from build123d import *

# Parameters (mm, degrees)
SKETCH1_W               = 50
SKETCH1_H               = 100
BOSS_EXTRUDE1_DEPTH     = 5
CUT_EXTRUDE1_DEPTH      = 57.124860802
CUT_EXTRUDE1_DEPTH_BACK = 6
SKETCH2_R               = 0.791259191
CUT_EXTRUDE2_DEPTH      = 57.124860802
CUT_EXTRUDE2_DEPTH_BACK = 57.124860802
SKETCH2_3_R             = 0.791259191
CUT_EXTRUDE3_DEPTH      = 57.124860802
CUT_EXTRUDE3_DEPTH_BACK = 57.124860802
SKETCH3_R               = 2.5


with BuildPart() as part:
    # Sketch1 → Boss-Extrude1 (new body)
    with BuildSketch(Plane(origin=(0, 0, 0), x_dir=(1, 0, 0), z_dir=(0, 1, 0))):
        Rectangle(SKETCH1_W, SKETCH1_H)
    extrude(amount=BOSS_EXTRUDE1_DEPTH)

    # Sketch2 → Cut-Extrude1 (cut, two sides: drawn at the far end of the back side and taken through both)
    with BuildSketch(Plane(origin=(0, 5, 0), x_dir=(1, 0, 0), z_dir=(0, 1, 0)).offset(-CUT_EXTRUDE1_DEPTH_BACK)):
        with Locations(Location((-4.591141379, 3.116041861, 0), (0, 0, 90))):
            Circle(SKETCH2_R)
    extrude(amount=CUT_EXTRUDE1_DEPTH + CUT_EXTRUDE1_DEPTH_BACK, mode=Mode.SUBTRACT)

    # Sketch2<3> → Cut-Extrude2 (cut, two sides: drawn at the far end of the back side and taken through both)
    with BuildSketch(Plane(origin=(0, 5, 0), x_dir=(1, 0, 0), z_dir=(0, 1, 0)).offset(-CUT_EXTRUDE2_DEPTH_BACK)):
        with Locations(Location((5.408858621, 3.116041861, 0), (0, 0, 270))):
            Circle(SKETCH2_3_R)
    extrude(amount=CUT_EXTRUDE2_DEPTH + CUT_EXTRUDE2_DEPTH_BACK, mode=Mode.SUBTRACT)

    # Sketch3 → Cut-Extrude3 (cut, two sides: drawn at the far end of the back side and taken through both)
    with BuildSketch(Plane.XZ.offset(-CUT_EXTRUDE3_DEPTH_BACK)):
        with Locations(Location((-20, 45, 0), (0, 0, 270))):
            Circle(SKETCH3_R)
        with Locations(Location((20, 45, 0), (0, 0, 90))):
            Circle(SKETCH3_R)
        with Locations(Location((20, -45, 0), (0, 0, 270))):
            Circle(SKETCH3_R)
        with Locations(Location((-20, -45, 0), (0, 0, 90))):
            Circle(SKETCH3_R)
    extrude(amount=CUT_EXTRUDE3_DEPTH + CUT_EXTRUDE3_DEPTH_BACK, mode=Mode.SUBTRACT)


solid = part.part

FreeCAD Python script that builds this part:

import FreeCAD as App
import Part
import Sketcher
from FreeCAD import Vector


def add_polygon(sketch, points):
    """Adds a closed chain of lines whose ends are joined by coincident constraints."""
    first, n = sketch.GeometryCount, len(points)
    for a, b in zip(points, points[1:] + points[:1]):
        sketch.addGeometry(Part.LineSegment(App.Vector(*a, 0), App.Vector(*b, 0)), False)
    for i in range(n):
        sketch.addConstraint(Sketcher.Constraint("Coincident", first + i, 2, first + (i + 1) % n, 1))

doc = App.newDocument("Part")
params = doc.addObject("Spreadsheet::Sheet", "Params")
for row, (alias, value) in enumerate([
    ("sketch1_width", "50 mm"),
    ("sketch1_height", "100 mm"),
    ("pad1_length", "5 mm"),
    ("sketch4_diameter", "5 mm"),
], start=1):
    params.set(f"A{row}", alias)
    params.set(f"B{row}", "=" + value)
    params.setAlias(f"B{row}", alias)

body = doc.addObject("PartDesign::Body", "Body")

# Sketch on XZ plane
sketch1 = body.newObject("Sketcher::SketchObject", "Sketch")
sketch1.AttachmentSupport = (doc.getObject("XZ_Plane"), [""])
sketch1.MapMode = "FlatFace"
add_polygon(sketch1, [(-25, -50), (-25, 50), (25, 50), (25, -50)])  # lines 0-3
sketch1.addConstraint(Sketcher.Constraint("Vertical", 0))
sketch1.addConstraint(Sketcher.Constraint("Horizontal", 1))
sketch1.addConstraint(Sketcher.Constraint("Vertical", 2))
sketch1.addConstraint(Sketcher.Constraint("Horizontal", 3))
sketch1.addConstraint(Sketcher.Constraint("Symmetric", 0, 2, 2, 2, -1, 1))
sketch1.addConstraint(Sketcher.Constraint("DistanceX", 1, 1, 1, 2, 50.0))
sketch1.addConstraint(Sketcher.Constraint("DistanceY", 0, 1, 0, 2, 100.0))
sketch1.setExpression("Constraints[9]", "Params.sketch1_width")
sketch1.setExpression("Constraints[10]", "Params.sketch1_height")
pad1 = body.newObject("PartDesign::Pad", "Pad")
pad1.Profile = sketch1
pad1.setExpression("Length", "Params.pad1_length")
pad1.Reversed = True

# Sketch on XZ plane
sketch2 = body.newObject("Sketcher::SketchObject", "Sketch001")
sketch2.AttachmentSupport = (doc.getObject("XZ_Plane"), [""])
sketch2.MapMode = "FlatFace"
sketch2.AttachmentOffset = App.Placement(Vector(0, 0, -5), App.Rotation())
sketch2.addGeometry(Part.Circle(Vector(-4.6, -3.1, 0), Vector(0, 0, 1), 0.8), False)
sketch2.addConstraint(Sketcher.Constraint("Diameter", 0, 1.582518))
sketch2.addConstraint(Sketcher.Constraint("DistanceX", 0, 3, -1, 1, 4.591141))
sketch2.addConstraint(Sketcher.Constraint("DistanceY", 0, 3, -1, 1, 3.116042))
pocket1 = body.newObject("PartDesign::Pocket", "Pocket")
pocket1.Profile = sketch2
pocket1.Type = "ThroughAll"
pocket1.Midplane = True

# Sketch on XZ plane
sketch3 = body.newObject("Sketcher::SketchObject", "Sketch002")
sketch3.AttachmentSupport = (doc.getObject("XZ_Plane"), [""])
sketch3.MapMode = "FlatFace"
sketch3.AttachmentOffset = App.Placement(Vector(0, 0, -5), App.Rotation())
sketch3.addGeometry(Part.Circle(Vector(5.4, -3.1, 0), Vector(0, 0, 1), 0.8), False)
sketch3.addConstraint(Sketcher.Constraint("Diameter", 0, 1.582518))
sketch3.addConstraint(Sketcher.Constraint("DistanceX", -1, 1, 0, 3, 5.408859))
sketch3.addConstraint(Sketcher.Constraint("DistanceY", 0, 3, -1, 1, 3.116042))
pocket2 = body.newObject("PartDesign::Pocket", "Pocket001")
pocket2.Profile = sketch3
pocket2.Type = "ThroughAll"
pocket2.Midplane = True

# Sketch on XZ plane
sketch4 = body.newObject("Sketcher::SketchObject", "Sketch003")
sketch4.AttachmentSupport = (doc.getObject("XZ_Plane"), [""])
sketch4.MapMode = "FlatFace"
sketch4.addGeometry(Part.Circle(Vector(-20, 45, 0), Vector(0, 0, 1), 2.5), False)
sketch4.addGeometry(Part.Circle(Vector(20, 45, 0), Vector(0, 0, 1), 2.5), False)
sketch4.addGeometry(Part.Circle(Vector(20, -45, 0), Vector(0, 0, 1), 2.5), False)
sketch4.addGeometry(Part.Circle(Vector(-20, -45, 0), Vector(0, 0, 1), 2.5), False)
sketch4.addConstraint(Sketcher.Constraint("Equal", 0, 1))
sketch4.addConstraint(Sketcher.Constraint("Equal", 1, 2))
sketch4.addConstraint(Sketcher.Constraint("Equal", 2, 3))
sketch4.addConstraint(Sketcher.Constraint("Symmetric", 0, 3, 2, 3, -1, 1))
sketch4.addConstraint(Sketcher.Constraint("Symmetric", 1, 3, 3, 3, -1, 1))
sketch4.addConstraint(Sketcher.Constraint("Symmetric", 0, 3, 1, 3, -2))
sketch4.addConstraint(Sketcher.Constraint("Diameter", 0, 5.0))
sketch4.addConstraint(Sketcher.Constraint("DistanceX", 0, 3, -1, 1, 20.0))
sketch4.addConstraint(Sketcher.Constraint("DistanceY", -1, 1, 0, 3, 45.0))
sketch4.setExpression("Constraints[6]", "Params.sketch4_diameter")
pocket3 = body.newObject("PartDesign::Pocket", "Pocket002")
pocket3.Profile = sketch4
pocket3.Type = "ThroughAll"
pocket3.Midplane = True

doc.recompute()
